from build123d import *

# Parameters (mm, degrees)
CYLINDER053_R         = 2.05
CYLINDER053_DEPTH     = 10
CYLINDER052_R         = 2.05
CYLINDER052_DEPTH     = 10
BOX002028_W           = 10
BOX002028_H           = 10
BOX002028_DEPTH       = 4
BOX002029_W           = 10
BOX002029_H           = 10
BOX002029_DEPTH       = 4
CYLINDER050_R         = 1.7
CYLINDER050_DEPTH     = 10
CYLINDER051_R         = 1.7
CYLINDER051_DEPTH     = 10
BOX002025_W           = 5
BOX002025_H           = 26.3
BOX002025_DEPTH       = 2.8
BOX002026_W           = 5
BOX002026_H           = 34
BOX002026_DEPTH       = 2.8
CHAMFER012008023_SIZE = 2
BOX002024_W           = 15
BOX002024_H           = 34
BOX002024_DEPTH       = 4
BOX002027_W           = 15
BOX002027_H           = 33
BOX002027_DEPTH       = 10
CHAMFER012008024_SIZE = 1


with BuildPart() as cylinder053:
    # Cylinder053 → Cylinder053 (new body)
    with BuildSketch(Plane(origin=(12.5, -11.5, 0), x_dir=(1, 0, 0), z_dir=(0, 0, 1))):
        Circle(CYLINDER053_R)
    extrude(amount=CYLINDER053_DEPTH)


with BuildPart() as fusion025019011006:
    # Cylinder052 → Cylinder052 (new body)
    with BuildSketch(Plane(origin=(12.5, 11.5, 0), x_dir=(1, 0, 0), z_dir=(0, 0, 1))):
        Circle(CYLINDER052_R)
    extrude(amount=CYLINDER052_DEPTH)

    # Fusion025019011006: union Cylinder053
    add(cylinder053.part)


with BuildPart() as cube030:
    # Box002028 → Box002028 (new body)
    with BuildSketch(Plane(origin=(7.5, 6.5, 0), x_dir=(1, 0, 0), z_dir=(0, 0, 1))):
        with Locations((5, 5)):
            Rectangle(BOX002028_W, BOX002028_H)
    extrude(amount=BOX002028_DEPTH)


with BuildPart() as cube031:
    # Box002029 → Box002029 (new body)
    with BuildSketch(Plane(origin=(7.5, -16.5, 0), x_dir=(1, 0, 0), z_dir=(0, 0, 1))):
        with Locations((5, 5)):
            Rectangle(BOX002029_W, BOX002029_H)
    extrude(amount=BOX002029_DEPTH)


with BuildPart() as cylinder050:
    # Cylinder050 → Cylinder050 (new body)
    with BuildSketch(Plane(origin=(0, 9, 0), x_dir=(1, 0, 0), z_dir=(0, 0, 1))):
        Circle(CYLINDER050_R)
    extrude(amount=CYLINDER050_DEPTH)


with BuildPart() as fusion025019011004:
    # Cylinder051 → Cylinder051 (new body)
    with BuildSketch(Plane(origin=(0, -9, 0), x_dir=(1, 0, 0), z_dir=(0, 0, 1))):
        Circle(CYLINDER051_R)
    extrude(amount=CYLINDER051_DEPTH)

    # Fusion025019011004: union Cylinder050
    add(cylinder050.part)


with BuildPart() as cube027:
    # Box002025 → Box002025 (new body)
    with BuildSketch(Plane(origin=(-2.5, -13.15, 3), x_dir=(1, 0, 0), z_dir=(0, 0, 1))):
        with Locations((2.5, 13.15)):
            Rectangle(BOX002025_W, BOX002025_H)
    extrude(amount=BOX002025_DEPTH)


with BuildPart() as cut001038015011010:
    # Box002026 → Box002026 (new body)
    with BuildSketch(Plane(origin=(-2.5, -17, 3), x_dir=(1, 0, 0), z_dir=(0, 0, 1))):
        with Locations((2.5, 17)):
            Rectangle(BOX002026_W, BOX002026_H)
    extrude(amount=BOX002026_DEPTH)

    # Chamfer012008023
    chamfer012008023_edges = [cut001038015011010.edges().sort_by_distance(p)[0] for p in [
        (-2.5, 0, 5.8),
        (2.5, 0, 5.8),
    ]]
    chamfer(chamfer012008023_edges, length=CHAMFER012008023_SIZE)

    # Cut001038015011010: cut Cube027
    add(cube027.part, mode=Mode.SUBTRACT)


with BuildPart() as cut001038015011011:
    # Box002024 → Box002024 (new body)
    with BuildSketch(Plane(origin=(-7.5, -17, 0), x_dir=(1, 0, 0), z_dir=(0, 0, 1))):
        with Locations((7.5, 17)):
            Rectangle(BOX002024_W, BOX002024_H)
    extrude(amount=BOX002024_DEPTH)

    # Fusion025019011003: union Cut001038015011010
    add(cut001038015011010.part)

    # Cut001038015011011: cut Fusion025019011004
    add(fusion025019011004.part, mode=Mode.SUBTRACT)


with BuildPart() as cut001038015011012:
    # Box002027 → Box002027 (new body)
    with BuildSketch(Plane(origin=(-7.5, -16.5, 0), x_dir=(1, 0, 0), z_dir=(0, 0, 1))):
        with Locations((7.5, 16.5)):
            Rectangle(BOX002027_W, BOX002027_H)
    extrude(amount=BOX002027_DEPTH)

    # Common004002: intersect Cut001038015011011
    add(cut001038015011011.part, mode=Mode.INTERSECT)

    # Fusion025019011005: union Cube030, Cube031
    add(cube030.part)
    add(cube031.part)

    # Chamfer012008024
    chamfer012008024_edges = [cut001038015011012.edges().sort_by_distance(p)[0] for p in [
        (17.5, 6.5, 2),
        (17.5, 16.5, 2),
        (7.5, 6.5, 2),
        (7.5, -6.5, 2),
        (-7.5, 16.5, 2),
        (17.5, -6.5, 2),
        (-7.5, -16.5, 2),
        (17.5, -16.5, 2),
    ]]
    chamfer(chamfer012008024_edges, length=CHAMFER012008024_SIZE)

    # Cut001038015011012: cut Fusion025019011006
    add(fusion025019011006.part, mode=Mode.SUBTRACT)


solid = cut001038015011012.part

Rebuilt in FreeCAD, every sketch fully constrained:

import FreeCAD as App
import Part
import Sketcher

V = App.Vector
Q = App.Units.Quantity


def edges_at(feature, points):
    """Names of the edges that pass closest to the given points."""
    edges = feature.Shape.Edges
    near = lambda p: min(range(len(edges)), key=lambda i: edges[i].distToShape(Part.Vertex(*p))[0])
    return sorted({f"Edge{near(p) + 1}" for p in points})


def add_polygon(sketch, points):
    """Adds a closed chain of lines whose ends are joined by coincident constraints."""
    first, n = sketch.GeometryCount, len(points)
    for a, b in zip(points, points[1:] + points[:1]):
        sketch.addGeometry(Part.LineSegment(App.Vector(*a, 0), App.Vector(*b, 0)), False)
    for i in range(n):
        sketch.addConstraint(Sketcher.Constraint("Coincident", first + i, 2, first + (i + 1) % n, 1))

doc = App.newDocument("Part")
params = doc.addObject("Spreadsheet::Sheet", "Params")
for row, (alias, value) in enumerate([
    ("sketch1_diameter", "4.1 mm"),
    ("pad1_length", "10 mm"),
    ("sketch2_diameter", "4.1 mm"),
    ("pad2_length", "10 mm"),
    ("sketch3_width", "10 mm"),
    ("pad3_length", "4 mm"),
    ("sketch4_width", "10 mm"),
    ("pad4_length", "4 mm"),
    ("sketch5_diameter", "3.4 mm"),
    ("pad5_length", "10 mm"),
    ("sketch6_diameter", "3.4 mm"),
    ("pad6_length", "10 mm"),
    ("sketch7_width", "5 mm"),
    ("sketch7_height", "26.3 mm"),
    ("pad7_length", "2.8 mm"),
    ("sketch8_width", "5 mm"),
    ("sketch8_height", "34 mm"),
    ("pad8_length", "2.8 mm"),
    ("chamfer_size", "2 mm"),
    ("sketch9_width", "15 mm"),
    ("sketch9_height", "34 mm"),
    ("pad9_length", "4 mm"),
    ("sketch10_width", "15 mm"),
    ("sketch10_height", "33 mm"),
    ("pad10_length", "10 mm"),
    ("chamfer2_size", "1 mm"),
], start=1):
    params.set(f"A{row}", alias)
    params.set(f"B{row}", "=" + value)
    params.setAlias(f"B{row}", alias)

body = doc.addObject("PartDesign::Body", "Body")

sketch1 = body.newObject("Sketcher::SketchObject", "Sketch")
sketch1.AttachmentSupport = (doc.getObject("XY_Plane"), [""])
sketch1.MapMode = "FlatFace"
sketch1.addGeometry(Part.Circle(V(12.5, -11.5, 0), V(0, 0, 1), 2), False)
sketch1.addConstraint(Sketcher.Constraint("Diameter", 0, Q("4.1 mm")))
sketch1.addConstraint(Sketcher.Constraint("DistanceX", -1, 1, 0, 3, Q("12.5 mm")))
sketch1.addConstraint(Sketcher.Constraint("DistanceY", 0, 3, -1, 1, Q("11.5 mm")))
sketch1.setExpression("Constraints[0]", "Params.sketch1_diameter")
pad1 = body.newObject("PartDesign::Pad", "Pad")
pad1.Profile = sketch1
pad1.setExpression("Length", "Params.pad1_length")
body2 = doc.addObject("PartDesign::Body", "Body001")
body2.AllowCompound = True

sketch2 = body2.newObject("Sketcher::SketchObject", "Sketch001")
sketch2.AttachmentSupport = (doc.getObject("XY_Plane001"), [""])
sketch2.MapMode = "FlatFace"
sketch2.addGeometry(Part.Circle(V(12.5, 11.5, 0), V(0, 0, 1), 2), False)
sketch2.addConstraint(Sketcher.Constraint("Diameter", 0, Q("4.1 mm")))
sketch2.addConstraint(Sketcher.Constraint("DistanceX", -1, 1, 0, 3, Q("12.5 mm")))
sketch2.addConstraint(Sketcher.Constraint("DistanceY", -1, 1, 0, 3, Q("11.5 mm")))
sketch2.setExpression("Constraints[0]", "Params.sketch2_diameter")
pad2 = body2.newObject("PartDesign::Pad", "Pad001")
pad2.Profile = sketch2
pad2.setExpression("Length", "Params.pad2_length")
doc.recompute()

boolean = body2.newObject("PartDesign::Boolean", "Boolean")
boolean.Type = "Fuse"
boolean.addObjects([body])
body3 = doc.addObject("PartDesign::Body", "Body002")

sketch3 = body3.newObject("Sketcher::SketchObject", "Sketch002")
sketch3.AttachmentSupport = (doc.getObject("XY_Plane002"), [""])
sketch3.MapMode = "FlatFace"
add_polygon(sketch3, [(8, 16), (8, 6), (18, 6), (18, 16)])
sketch3.addConstraint(Sketcher.Constraint("Vertical", 0))
sketch3.addConstraint(Sketcher.Constraint("Horizontal", 1))
sketch3.addConstraint(Sketcher.Constraint("Vertical", 2))
sketch3.addConstraint(Sketcher.Constraint("Horizontal", 3))
sketch3.addConstraint(Sketcher.Constraint("Equal", 3, 0))
sketch3.addConstraint(Sketcher.Constraint("DistanceX", 1, 1, 1, 2, Q("10 mm")))
sketch3.addConstraint(Sketcher.Constraint("DistanceX", -1, 1, 0, 2, Q("7.5 mm")))
sketch3.addConstraint(Sketcher.Constraint("DistanceY", -1, 1, 0, 2, Q("6.5 mm")))
sketch3.setExpression("Constraints[9]", "Params.sketch3_width")
pad3 = body3.newObject("PartDesign::Pad", "Pad002")
pad3.Profile = sketch3
pad3.setExpression("Length", "Params.pad3_length")
body4 = doc.addObject("PartDesign::Body", "Body003")

sketch4 = body4.newObject("Sketcher::SketchObject", "Sketch003")
sketch4.AttachmentSupport = (doc.getObject("XY_Plane003"), [""])
sketch4.MapMode = "FlatFace"
add_polygon(sketch4, [(8, -6), (8, -16), (18, -16), (18, -6)])
sketch4.addConstraint(Sketcher.Constraint("Vertical", 0))
sketch4.addConstraint(Sketcher.Constraint("Horizontal", 1))
sketch4.addConstraint(Sketcher.Constraint("Vertical", 2))
sketch4.addConstraint(Sketcher.Constraint("Horizontal", 3))
sketch4.addConstraint(Sketcher.Constraint("Equal", 3, 0))
sketch4.addConstraint(Sketcher.Constraint("DistanceX", 1, 1, 1, 2, Q("10 mm")))
sketch4.addConstraint(Sketcher.Constraint("DistanceX", -1, 1, 0, 2, Q("7.5 mm")))
sketch4.addConstraint(Sketcher.Constraint("DistanceY", 0, 2, -1, 1, Q("16.5 mm")))
sketch4.setExpression("Constraints[9]", "Params.sketch4_width")
pad4 = body4.newObject("PartDesign::Pad", "Pad003")
pad4.Profile = sketch4
pad4.setExpression("Length", "Params.pad4_length")
body5 = doc.addObject("PartDesign::Body", "Body004")

sketch5 = body5.newObject("Sketcher::SketchObject", "Sketch004")
sketch5.AttachmentSupport = (doc.getObject("XY_Plane004"), [""])
sketch5.MapMode = "FlatFace"
sketch5.addGeometry(Part.Circle(V(0, 9, 0), V(0, 0, 1), 1.7), False)
sketch5.addConstraint(Sketcher.Constraint("PointOnObject", 0, 3, -2))
sketch5.addConstraint(Sketcher.Constraint("Diameter", 0, Q("3.4 mm")))
sketch5.addConstraint(Sketcher.Constraint("DistanceY", -1, 1, 0, 3, Q("9 mm")))
sketch5.setExpression("Constraints[1]", "Params.sketch5_diameter")
pad5 = body5.newObject("PartDesign::Pad", "Pad004")
pad5.Profile = sketch5
pad5.setExpression("Length", "Params.pad5_length")
body6 = doc.addObject("PartDesign::Body", "Body005")
body6.AllowCompound = True

sketch6 = body6.newObject("Sketcher::SketchObject", "Sketch005")
sketch6.AttachmentSupport = (doc.getObject("XY_Plane005"), [""])
sketch6.MapMode = "FlatFace"
sketch6.addGeometry(Part.Circle(V(0, -9, 0), V(0, 0, 1), 1.7), False)
sketch6.addConstraint(Sketcher.Constraint("PointOnObject", 0, 3, -2))
sketch6.addConstraint(Sketcher.Constraint("Diameter", 0, Q("3.4 mm")))
sketch6.addConstraint(Sketcher.Constraint("DistanceY", 0, 3, -1, 1, Q("9 mm")))
sketch6.setExpression("Constraints[1]", "Params.sketch6_diameter")
pad6 = body6.newObject("PartDesign::Pad", "Pad005")
pad6.Profile = sketch6
pad6.setExpression("Length", "Params.pad6_length")
doc.recompute()

boolean2 = body6.newObject("PartDesign::Boolean", "Boolean001")
boolean2.Type = "Fuse"
boolean2.addObjects([body5])
body7 = doc.addObject("PartDesign::Body", "Body006")

sketch7 = body7.newObject("Sketcher::SketchObject", "Sketch006")
sketch7.AttachmentSupport = (doc.getObject("XY_Plane006"), [""])
sketch7.MapMode = "FlatFace"
sketch7.AttachmentOffset = App.Placement(V(0, 0, 3), App.Rotation())
add_polygon(sketch7, [(-2, 13), (-2, -13), (2, -13), (2, 13)])
sketch7.addConstraint(Sketcher.Constraint("Vertical", 0))
sketch7.addConstraint(Sketcher.Constraint("Horizontal", 1))
sketch7.addConstraint(Sketcher.Constraint("Vertical", 2))
sketch7.addConstraint(Sketcher.Constraint("Horizontal", 3))
sketch7.addConstraint(Sketcher.Constraint("Symmetric", 0, 2, 2, 2, -1, 1))
sketch7.addConstraint(Sketcher.Constraint("DistanceX", 1, 1, 1, 2, Q("5 mm")))
sketch7.addConstraint(Sketcher.Constraint("DistanceY", 0, 2, 0, 1, Q("26.3 mm")))
sketch7.setExpression("Constraints[9]", "Params.sketch7_width")
sketch7.setExpression("Constraints[10]", "Params.sketch7_height")
pad7 = body7.newObject("PartDesign::Pad", "Pad006")
pad7.Profile = sketch7
pad7.setExpression("Length", "Params.pad7_length")
body8 = doc.addObject("PartDesign::Body", "Body007")
body8.AllowCompound = True

sketch8 = body8.newObject("Sketcher::SketchObject", "Sketch007")
sketch8.AttachmentSupport = (doc.getObject("XY_Plane007"), [""])
sketch8.MapMode = "FlatFace"
sketch8.AttachmentOffset = App.Placement(V(0, 0, 3), App.Rotation())
add_polygon(sketch8, [(-2, 17), (-2, -17), (2, -17), (2, 17)])
sketch8.addConstraint(Sketcher.Constraint("Vertical", 0))
sketch8.addConstraint(Sketcher.Constraint("Horizontal", 1))
sketch8.addConstraint(Sketcher.Constraint("Vertical", 2))
sketch8.addConstraint(Sketcher.Constraint("Horizontal", 3))
sketch8.addConstraint(Sketcher.Constraint("Symmetric", 0, 2, 2, 2, -1, 1))
sketch8.addConstraint(Sketcher.Constraint("DistanceX", 1, 1, 1, 2, Q("5 mm")))
sketch8.addConstraint(Sketcher.Constraint("DistanceY", 0, 2, 0, 1, Q("34 mm")))
sketch8.setExpression("Constraints[9]", "Params.sketch8_width")
sketch8.setExpression("Constraints[10]", "Params.sketch8_height")
pad8 = body8.newObject("PartDesign::Pad", "Pad007")
pad8.Profile = sketch8
pad8.setExpression("Length", "Params.pad8_length")
doc.recompute()

chamfer = body8.newObject("PartDesign::Chamfer", "Chamfer")
chamfer.Base = (pad8, edges_at(pad8, [(-2.5, 0, 5.8), (2.5, 0, 5.8)]))
chamfer.setExpression("Size", "Params.chamfer_size")
doc.recompute()

boolean3 = body8.newObject("PartDesign::Boolean", "Boolean002")
boolean3.Type = "Cut"
boolean3.addObjects([body7])
body9 = doc.addObject("PartDesign::Body", "Body008")

sketch9 = body9.newObject("Sketcher::SketchObject", "Sketch008")
sketch9.AttachmentSupport = (doc.getObject("XY_Plane008"), [""])
sketch9.MapMode = "FlatFace"
add_polygon(sketch9, [(-8, 17), (-8, -17), (8, -17), (8, 17)])
sketch9.addConstraint(Sketcher.Constraint("Vertical", 0))
sketch9.addConstraint(Sketcher.Constraint("Horizontal", 1))
sketch9.addConstraint(Sketcher.Constraint("Vertical", 2))
sketch9.addConstraint(Sketcher.Constraint("Horizontal", 3))
sketch9.addConstraint(Sketcher.Constraint("Symmetric", 0, 2, 2, 2, -1, 1))
sketch9.addConstraint(Sketcher.Constraint("DistanceX", 1, 1, 1, 2, Q("15 mm")))
sketch9.addConstraint(Sketcher.Constraint("DistanceY", 0, 2, 0, 1, Q("34 mm")))
sketch9.setExpression("Constraints[9]", "Params.sketch9_width")
sketch9.setExpression("Constraints[10]", "Params.sketch9_height")
pad9 = body9.newObject("PartDesign::Pad", "Pad008")
pad9.Profile = sketch9
pad9.setExpression("Length", "Params.pad9_length")
doc.recompute()

boolean4 = body9.newObject("PartDesign::Boolean", "Boolean003")
boolean4.Type = "Fuse"
boolean4.addObjects([body8])
doc.recompute()

boolean5 = body9.newObject("PartDesign::Boolean", "Boolean004")
boolean5.Type = "Cut"
boolean5.addObjects([body6])
body10 = doc.addObject("PartDesign::Body", "Body009")

sketch10 = body10.newObject("Sketcher::SketchObject", "Sketch009")
sketch10.AttachmentSupport = (doc.getObject("XY_Plane009"), [""])
sketch10.MapMode = "FlatFace"
add_polygon(sketch10, [(-8, 16), (-8, -16), (8, -16), (8, 16)])
sketch10.addConstraint(Sketcher.Constraint("Vertical", 0))
sketch10.addConstraint(Sketcher.Constraint("Horizontal", 1))
sketch10.addConstraint(Sketcher.Constraint("Vertical", 2))
sketch10.addConstraint(Sketcher.Constraint("Horizontal", 3))
sketch10.addConstraint(Sketcher.Constraint("Symmetric", 0, 2, 2, 2, -1, 1))
sketch10.addConstraint(Sketcher.Constraint("DistanceX", 1, 1, 1, 2, Q("15 mm")))
sketch10.addConstraint(Sketcher.Constraint("DistanceY", 0, 2, 0, 1, Q("33 mm")))
sketch10.setExpression("Constraints[9]", "Params.sketch10_width")
sketch10.setExpression("Constraints[10]", "Params.sketch10_height")
pad10 = body10.newObject("PartDesign::Pad", "Pad009")
pad10.Profile = sketch10
pad10.setExpression("Length", "Params.pad10_length")
doc.recompute()

boolean6 = body10.newObject("PartDesign::Boolean", "Boolean005")
boolean6.Type = "Common"
boolean6.addObjects([body9])
doc.recompute()

boolean7 = body10.newObject("PartDesign::Boolean", "Boolean006")
boolean7.Type = "Fuse"
boolean7.addObjects([body3])
doc.recompute()

boolean8 = body10.newObject("PartDesign::Boolean", "Boolean007")
boolean8.Type = "Fuse"
boolean8.addObjects([body4])
doc.recompute()

chamfer2 = body10.newObject("PartDesign::Chamfer", "Chamfer001")
chamfer2.Base = (boolean8, edges_at(boolean8, [
    (17.5, 6.5, 2),
    (17.5, 16.5, 2),
    (7.5, 6.5, 2),
    (7.5, -6.5, 2),
    (-7.5, 16.5, 2),
    (17.5, -6.5, 2),
    (-7.5, -16.5, 2),
    (17.5, -16.5, 2),
]))
chamfer2.setExpression("Size", "Params.chamfer2_size")
doc.recompute()

boolean9 = body10.newObject("PartDesign::Boolean", "Boolean008")
boolean9.Type = "Cut"
boolean9.addObjects([body2])

doc.recompute()
